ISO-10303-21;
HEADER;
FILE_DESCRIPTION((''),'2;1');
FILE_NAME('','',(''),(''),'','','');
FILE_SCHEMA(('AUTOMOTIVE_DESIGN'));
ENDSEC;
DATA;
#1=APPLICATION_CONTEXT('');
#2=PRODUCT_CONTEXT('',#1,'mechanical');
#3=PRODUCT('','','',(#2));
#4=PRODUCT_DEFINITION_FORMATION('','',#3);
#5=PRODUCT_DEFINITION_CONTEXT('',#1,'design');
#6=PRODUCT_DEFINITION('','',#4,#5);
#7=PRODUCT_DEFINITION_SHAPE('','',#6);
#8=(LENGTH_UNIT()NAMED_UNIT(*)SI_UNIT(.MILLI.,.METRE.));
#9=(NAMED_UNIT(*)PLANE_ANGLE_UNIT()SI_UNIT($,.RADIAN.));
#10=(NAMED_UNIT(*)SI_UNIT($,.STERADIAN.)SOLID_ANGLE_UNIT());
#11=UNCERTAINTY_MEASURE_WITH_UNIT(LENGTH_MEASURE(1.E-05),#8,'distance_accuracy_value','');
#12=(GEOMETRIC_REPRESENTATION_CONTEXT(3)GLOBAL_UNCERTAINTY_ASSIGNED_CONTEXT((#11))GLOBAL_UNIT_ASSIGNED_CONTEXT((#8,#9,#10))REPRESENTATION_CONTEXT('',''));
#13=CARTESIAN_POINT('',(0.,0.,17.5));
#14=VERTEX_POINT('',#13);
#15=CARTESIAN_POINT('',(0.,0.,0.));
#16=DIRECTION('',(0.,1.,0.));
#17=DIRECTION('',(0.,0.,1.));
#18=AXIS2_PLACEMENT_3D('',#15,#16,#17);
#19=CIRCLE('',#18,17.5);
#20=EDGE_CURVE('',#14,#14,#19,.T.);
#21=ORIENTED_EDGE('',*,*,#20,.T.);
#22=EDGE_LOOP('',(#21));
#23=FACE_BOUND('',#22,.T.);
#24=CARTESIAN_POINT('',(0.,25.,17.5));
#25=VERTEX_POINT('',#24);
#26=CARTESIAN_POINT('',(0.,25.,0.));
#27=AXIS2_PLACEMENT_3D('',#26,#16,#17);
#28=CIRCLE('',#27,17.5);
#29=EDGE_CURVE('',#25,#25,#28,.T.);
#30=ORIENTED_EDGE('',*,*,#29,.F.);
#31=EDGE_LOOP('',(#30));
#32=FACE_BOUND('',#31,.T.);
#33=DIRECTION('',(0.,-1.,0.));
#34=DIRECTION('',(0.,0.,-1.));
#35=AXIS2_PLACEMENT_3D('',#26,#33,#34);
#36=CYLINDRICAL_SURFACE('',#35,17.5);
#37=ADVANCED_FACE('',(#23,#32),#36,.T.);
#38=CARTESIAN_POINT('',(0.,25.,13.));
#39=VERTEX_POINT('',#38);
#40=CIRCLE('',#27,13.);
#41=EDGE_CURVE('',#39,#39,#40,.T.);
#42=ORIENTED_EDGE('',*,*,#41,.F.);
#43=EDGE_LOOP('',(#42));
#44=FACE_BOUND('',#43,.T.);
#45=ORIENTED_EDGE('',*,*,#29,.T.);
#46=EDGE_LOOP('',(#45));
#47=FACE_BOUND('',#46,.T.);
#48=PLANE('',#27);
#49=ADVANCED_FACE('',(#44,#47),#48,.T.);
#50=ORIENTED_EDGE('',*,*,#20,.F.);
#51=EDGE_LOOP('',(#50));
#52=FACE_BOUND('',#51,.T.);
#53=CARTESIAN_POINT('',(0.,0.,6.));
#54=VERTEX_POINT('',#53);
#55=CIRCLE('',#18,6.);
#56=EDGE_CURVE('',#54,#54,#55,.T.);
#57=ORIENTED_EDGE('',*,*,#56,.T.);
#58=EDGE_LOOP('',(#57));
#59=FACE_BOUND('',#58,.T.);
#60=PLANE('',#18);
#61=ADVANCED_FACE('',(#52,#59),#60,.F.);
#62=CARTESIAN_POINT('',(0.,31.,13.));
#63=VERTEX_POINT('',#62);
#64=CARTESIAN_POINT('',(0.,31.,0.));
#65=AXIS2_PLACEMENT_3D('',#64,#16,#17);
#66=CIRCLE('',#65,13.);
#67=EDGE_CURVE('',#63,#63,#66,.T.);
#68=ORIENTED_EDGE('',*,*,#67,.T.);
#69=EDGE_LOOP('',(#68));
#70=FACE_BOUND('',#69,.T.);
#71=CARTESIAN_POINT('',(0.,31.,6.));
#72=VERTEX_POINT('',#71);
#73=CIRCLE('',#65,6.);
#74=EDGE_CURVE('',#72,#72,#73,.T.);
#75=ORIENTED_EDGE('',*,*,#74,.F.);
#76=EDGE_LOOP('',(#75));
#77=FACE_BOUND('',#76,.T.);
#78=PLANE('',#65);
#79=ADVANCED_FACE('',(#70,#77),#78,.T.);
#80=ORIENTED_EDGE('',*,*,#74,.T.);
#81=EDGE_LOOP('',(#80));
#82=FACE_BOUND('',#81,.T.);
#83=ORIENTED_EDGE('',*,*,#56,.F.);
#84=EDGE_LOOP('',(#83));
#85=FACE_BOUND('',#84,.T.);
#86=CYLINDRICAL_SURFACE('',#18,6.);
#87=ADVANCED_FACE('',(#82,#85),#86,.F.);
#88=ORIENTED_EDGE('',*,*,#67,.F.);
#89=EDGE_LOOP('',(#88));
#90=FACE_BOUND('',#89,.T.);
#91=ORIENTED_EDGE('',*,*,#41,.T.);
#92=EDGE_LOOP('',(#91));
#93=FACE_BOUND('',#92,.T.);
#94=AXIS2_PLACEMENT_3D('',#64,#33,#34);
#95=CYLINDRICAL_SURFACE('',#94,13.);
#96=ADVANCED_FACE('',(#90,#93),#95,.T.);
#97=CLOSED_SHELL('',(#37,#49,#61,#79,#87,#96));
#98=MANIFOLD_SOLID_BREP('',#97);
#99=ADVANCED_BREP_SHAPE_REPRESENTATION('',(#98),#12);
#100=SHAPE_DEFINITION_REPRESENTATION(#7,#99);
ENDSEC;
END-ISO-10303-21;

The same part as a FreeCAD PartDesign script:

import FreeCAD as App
import Part
import Sketcher

V = App.Vector
Q = App.Units.Quantity

doc = App.newDocument("Part")
body = doc.addObject("PartDesign::Body", "Body")

sketch1 = body.newObject("Sketcher::SketchObject", "Sketch")
sketch1.AttachmentSupport = (doc.getObject("XZ_Plane"), [""])
sketch1.MapMode = "FlatFace"
sketch1.addGeometry(Part.Circle(V(0, 0, 0), V(0, 0, 1), 18), False)
sketch1.addConstraint([
    Sketcher.Constraint("Coincident", 0, 3, -1, 1),
    Sketcher.Constraint("Diameter", 0, Q("35 mm")),
])
pad1 = body.newObject("PartDesign::Pad", "Pad")
pad1.Profile = sketch1
pad1.Length = 25
pad1.Reversed = True

sketch2 = body.newObject("Sketcher::SketchObject", "Sketch001")
sketch2.AttachmentSupport = (doc.getObject("XZ_Plane"), [""])
sketch2.MapMode = "FlatFace"
sketch2.AttachmentOffset = App.Placement(V(0, 0, -25), App.Rotation())
sketch2.addGeometry(Part.Circle(V(0, 0, 0), V(0, 0, 1), 13), False)
sketch2.addConstraint([
    Sketcher.Constraint("Coincident", 0, 3, -1, 1),
    Sketcher.Constraint("Diameter", 0, Q("26 mm")),
])
pad2 = body.newObject("PartDesign::Pad", "Pad001")
pad2.Profile = sketch2
pad2.Length = 6
pad2.Reversed = True

sketch3 = body.newObject("Sketcher::SketchObject", "Sketch002")
sketch3.AttachmentSupport = (doc.getObject("XZ_Plane"), [""])
sketch3.MapMode = "FlatFace"
sketch3.AttachmentOffset = App.Placement(V(0, 0, -31), App.Rotation())
sketch3.addGeometry(Part.Circle(V(0, 0, 0), V(0, 0, 1), 6), False)
sketch3.addConstraint([
    Sketcher.Constraint("Coincident", 0, 3, -1, 1),
    Sketcher.Constraint("Diameter", 0, Q("12 mm")),
])
pocket1 = body.newObject("PartDesign::Pocket", "Pocket")
pocket1.Profile = sketch3
pocket1.Type = "ThroughAll"
pocket1.Reversed = True

doc.recompute()
